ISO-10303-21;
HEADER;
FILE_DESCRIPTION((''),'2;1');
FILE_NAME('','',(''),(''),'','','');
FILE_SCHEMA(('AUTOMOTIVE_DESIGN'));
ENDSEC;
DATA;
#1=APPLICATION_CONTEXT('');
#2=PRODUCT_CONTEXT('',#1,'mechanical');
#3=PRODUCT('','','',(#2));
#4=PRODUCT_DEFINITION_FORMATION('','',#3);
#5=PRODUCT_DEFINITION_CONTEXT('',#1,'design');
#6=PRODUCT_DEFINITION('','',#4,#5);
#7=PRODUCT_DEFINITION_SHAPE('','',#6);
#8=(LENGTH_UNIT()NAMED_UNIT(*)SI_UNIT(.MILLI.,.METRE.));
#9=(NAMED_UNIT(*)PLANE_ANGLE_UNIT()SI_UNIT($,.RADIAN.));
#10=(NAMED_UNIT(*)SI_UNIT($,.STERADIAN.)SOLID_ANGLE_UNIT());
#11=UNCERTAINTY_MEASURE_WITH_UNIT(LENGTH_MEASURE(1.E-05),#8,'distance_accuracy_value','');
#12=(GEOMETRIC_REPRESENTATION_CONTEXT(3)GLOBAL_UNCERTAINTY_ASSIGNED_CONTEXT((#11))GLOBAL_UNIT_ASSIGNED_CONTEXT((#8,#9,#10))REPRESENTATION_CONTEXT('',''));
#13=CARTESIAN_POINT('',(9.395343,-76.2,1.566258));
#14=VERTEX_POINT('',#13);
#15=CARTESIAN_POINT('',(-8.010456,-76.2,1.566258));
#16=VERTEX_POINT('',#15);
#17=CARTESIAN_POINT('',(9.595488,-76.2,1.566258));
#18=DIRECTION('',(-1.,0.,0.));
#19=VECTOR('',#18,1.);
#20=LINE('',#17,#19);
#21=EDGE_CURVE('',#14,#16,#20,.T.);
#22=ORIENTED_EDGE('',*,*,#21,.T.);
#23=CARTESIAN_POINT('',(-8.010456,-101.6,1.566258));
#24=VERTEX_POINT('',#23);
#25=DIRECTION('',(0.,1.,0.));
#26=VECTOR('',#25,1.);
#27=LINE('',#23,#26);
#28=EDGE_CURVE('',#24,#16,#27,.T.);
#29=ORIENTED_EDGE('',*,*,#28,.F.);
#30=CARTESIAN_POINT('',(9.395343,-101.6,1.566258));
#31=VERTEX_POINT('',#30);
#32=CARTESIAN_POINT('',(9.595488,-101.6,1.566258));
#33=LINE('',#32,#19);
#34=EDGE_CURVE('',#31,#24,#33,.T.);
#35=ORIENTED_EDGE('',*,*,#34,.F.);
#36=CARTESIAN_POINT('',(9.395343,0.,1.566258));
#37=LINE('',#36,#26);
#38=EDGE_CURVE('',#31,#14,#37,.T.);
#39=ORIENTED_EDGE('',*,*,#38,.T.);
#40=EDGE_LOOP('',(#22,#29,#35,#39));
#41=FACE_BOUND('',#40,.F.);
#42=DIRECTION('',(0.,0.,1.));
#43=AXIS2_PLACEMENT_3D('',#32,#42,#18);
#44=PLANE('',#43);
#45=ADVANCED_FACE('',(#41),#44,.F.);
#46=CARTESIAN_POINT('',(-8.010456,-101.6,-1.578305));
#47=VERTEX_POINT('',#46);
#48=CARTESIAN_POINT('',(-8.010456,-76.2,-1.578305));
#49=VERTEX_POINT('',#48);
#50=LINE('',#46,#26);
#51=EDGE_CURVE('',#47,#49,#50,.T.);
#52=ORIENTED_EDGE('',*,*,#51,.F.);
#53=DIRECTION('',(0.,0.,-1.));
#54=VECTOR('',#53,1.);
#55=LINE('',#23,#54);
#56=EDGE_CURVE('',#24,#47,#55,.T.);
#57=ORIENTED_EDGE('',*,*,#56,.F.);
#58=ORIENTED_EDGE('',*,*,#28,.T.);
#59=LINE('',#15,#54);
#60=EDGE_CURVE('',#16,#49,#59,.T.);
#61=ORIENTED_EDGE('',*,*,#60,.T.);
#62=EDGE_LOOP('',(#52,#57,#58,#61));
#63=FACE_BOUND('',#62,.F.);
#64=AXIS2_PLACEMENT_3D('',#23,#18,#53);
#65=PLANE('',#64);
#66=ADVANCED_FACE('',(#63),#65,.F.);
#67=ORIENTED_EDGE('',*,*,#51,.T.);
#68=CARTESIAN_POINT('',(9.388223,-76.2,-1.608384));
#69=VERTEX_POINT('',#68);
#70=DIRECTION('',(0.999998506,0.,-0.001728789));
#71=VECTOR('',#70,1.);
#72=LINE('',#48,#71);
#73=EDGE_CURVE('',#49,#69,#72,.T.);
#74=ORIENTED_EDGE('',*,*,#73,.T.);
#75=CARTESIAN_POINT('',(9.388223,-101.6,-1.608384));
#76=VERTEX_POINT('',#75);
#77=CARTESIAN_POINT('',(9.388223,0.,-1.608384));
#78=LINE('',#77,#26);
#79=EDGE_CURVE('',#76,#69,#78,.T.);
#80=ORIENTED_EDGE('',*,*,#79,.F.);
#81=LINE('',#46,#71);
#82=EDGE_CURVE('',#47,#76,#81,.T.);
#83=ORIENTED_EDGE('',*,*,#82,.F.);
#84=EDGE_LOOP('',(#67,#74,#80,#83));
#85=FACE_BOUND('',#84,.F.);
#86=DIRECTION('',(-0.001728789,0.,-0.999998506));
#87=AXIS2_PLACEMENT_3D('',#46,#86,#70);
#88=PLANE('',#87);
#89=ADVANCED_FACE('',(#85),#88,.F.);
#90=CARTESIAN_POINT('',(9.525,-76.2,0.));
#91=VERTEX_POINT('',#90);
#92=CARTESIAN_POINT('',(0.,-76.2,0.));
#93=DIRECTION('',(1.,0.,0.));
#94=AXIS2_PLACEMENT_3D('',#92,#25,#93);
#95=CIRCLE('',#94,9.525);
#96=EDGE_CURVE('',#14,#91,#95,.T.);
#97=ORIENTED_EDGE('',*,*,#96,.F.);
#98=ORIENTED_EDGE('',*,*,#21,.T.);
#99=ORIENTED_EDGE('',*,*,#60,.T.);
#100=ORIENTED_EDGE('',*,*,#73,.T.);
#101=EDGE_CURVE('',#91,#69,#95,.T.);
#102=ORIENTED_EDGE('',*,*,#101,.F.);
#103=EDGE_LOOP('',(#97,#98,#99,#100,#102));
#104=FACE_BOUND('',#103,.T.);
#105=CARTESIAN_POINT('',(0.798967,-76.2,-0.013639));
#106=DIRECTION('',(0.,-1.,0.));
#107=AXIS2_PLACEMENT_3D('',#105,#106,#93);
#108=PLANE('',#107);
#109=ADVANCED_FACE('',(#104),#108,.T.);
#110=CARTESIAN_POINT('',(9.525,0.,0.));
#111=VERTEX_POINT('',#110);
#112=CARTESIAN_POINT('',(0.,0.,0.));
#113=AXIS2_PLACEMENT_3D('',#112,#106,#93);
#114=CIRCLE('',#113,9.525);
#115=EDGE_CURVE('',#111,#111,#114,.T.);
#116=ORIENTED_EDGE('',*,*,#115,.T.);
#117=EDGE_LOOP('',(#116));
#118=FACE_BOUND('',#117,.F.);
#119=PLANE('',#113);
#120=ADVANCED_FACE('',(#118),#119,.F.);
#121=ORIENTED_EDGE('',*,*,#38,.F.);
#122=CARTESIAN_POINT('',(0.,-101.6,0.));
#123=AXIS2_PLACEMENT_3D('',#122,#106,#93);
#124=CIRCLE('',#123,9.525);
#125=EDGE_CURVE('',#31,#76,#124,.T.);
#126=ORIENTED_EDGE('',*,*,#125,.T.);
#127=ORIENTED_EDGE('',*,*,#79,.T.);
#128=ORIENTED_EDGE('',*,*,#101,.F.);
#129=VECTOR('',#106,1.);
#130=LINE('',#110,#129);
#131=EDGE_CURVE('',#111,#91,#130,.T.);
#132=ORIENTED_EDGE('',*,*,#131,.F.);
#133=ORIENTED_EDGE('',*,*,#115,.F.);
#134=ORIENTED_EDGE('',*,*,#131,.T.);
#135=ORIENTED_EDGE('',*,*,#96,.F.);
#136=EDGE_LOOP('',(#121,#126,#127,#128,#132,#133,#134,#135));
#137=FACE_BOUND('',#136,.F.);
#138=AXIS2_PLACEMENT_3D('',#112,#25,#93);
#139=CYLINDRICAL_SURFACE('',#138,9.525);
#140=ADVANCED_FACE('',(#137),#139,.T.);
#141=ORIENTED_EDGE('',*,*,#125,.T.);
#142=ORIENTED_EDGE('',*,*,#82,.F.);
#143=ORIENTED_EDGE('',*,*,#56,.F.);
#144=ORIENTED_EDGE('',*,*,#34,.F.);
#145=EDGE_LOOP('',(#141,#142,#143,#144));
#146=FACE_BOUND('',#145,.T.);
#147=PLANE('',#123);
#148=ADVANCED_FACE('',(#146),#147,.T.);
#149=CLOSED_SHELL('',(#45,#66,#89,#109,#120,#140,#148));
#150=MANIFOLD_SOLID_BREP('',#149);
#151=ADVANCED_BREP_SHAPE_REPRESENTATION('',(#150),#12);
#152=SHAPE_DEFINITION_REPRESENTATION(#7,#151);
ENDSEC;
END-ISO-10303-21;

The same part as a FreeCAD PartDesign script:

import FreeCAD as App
import Part
import Sketcher
Q = App.Units.Quantity

doc = App.newDocument("Part")
body = doc.addObject("PartDesign::Body", "Body")

# Sketch on XZ plane
sketch1 = body.newObject("Sketcher::SketchObject", "Sketch")
sketch1.AttachmentSupport = (doc.getObject("XZ_Plane"), [""])
sketch1.MapMode = "FlatFace"
sketch1.addGeometry(Part.Circle(App.Vector(0, 0, 0), App.Vector(0, 0, 1), 10), False)
sketch1.addConstraint([
    Sketcher.Constraint("Coincident", 0, 3, -1, 1),
    Sketcher.Constraint("Diameter", 0, Q("0.75 in")),
])
pad1 = body.newObject("PartDesign::Pad", "Pad")
pad1.Profile = sketch1
pad1.Length = Q("4 in")

# Sketch on XZ plane
sketch2 = body.newObject("Sketcher::SketchObject", "Sketch001")
sketch2.AttachmentSupport = (doc.getObject("XZ_Plane"), [""])
sketch2.MapMode = "FlatFace"
sketch2.AttachmentOffset = App.Placement(App.Vector(0, 0, 4 * 25.4), App.Rotation())
sketch2.addGeometry([
    Part.LineSegment(App.Vector(-8, 1.6, 0), App.Vector(-8, -1.6, 0)),
    Part.LineSegment(App.Vector(-8, -1.6, 0), App.Vector(9.6, -1.6, 0)),
    Part.LineSegment(App.Vector(9.6, -1.6, 0), App.Vector(9.6, 1.6, 0)),
    Part.LineSegment(App.Vector(9.6, 1.6, 0), App.Vector(-8, 1.6, 0)),
], False)
sketch2.addConstraint([
    Sketcher.Constraint("Coincident", 0, 2, 1, 1),
    Sketcher.Constraint("Coincident", 1, 2, 2, 1),
    Sketcher.Constraint("Coincident", 2, 2, 3, 1),
    Sketcher.Constraint("Coincident", 3, 2, 0, 1),
    Sketcher.Constraint("Vertical", 0),
    Sketcher.Constraint("Vertical", 2),
    Sketcher.Constraint("Horizontal", 3),
    Sketcher.Constraint("DistanceY", 2, 1, 2, 2, Q("0.125 in")),
    Sketcher.Constraint("Distance", 1, 17.60597),
    Sketcher.Constraint("DistanceY", 0, 2, 0, 1, 3.144563),
    Sketcher.Constraint("DistanceY", 1, 2, -1, 1, 1.608742),
    Sketcher.Constraint("DistanceX", 0, 2, -1, 1, 8.010456),
])
pocket1 = body.newObject("PartDesign::Pocket", "Pocket")
pocket1.Profile = sketch2
pocket1.Length = Q("1 in")

doc.recompute()
